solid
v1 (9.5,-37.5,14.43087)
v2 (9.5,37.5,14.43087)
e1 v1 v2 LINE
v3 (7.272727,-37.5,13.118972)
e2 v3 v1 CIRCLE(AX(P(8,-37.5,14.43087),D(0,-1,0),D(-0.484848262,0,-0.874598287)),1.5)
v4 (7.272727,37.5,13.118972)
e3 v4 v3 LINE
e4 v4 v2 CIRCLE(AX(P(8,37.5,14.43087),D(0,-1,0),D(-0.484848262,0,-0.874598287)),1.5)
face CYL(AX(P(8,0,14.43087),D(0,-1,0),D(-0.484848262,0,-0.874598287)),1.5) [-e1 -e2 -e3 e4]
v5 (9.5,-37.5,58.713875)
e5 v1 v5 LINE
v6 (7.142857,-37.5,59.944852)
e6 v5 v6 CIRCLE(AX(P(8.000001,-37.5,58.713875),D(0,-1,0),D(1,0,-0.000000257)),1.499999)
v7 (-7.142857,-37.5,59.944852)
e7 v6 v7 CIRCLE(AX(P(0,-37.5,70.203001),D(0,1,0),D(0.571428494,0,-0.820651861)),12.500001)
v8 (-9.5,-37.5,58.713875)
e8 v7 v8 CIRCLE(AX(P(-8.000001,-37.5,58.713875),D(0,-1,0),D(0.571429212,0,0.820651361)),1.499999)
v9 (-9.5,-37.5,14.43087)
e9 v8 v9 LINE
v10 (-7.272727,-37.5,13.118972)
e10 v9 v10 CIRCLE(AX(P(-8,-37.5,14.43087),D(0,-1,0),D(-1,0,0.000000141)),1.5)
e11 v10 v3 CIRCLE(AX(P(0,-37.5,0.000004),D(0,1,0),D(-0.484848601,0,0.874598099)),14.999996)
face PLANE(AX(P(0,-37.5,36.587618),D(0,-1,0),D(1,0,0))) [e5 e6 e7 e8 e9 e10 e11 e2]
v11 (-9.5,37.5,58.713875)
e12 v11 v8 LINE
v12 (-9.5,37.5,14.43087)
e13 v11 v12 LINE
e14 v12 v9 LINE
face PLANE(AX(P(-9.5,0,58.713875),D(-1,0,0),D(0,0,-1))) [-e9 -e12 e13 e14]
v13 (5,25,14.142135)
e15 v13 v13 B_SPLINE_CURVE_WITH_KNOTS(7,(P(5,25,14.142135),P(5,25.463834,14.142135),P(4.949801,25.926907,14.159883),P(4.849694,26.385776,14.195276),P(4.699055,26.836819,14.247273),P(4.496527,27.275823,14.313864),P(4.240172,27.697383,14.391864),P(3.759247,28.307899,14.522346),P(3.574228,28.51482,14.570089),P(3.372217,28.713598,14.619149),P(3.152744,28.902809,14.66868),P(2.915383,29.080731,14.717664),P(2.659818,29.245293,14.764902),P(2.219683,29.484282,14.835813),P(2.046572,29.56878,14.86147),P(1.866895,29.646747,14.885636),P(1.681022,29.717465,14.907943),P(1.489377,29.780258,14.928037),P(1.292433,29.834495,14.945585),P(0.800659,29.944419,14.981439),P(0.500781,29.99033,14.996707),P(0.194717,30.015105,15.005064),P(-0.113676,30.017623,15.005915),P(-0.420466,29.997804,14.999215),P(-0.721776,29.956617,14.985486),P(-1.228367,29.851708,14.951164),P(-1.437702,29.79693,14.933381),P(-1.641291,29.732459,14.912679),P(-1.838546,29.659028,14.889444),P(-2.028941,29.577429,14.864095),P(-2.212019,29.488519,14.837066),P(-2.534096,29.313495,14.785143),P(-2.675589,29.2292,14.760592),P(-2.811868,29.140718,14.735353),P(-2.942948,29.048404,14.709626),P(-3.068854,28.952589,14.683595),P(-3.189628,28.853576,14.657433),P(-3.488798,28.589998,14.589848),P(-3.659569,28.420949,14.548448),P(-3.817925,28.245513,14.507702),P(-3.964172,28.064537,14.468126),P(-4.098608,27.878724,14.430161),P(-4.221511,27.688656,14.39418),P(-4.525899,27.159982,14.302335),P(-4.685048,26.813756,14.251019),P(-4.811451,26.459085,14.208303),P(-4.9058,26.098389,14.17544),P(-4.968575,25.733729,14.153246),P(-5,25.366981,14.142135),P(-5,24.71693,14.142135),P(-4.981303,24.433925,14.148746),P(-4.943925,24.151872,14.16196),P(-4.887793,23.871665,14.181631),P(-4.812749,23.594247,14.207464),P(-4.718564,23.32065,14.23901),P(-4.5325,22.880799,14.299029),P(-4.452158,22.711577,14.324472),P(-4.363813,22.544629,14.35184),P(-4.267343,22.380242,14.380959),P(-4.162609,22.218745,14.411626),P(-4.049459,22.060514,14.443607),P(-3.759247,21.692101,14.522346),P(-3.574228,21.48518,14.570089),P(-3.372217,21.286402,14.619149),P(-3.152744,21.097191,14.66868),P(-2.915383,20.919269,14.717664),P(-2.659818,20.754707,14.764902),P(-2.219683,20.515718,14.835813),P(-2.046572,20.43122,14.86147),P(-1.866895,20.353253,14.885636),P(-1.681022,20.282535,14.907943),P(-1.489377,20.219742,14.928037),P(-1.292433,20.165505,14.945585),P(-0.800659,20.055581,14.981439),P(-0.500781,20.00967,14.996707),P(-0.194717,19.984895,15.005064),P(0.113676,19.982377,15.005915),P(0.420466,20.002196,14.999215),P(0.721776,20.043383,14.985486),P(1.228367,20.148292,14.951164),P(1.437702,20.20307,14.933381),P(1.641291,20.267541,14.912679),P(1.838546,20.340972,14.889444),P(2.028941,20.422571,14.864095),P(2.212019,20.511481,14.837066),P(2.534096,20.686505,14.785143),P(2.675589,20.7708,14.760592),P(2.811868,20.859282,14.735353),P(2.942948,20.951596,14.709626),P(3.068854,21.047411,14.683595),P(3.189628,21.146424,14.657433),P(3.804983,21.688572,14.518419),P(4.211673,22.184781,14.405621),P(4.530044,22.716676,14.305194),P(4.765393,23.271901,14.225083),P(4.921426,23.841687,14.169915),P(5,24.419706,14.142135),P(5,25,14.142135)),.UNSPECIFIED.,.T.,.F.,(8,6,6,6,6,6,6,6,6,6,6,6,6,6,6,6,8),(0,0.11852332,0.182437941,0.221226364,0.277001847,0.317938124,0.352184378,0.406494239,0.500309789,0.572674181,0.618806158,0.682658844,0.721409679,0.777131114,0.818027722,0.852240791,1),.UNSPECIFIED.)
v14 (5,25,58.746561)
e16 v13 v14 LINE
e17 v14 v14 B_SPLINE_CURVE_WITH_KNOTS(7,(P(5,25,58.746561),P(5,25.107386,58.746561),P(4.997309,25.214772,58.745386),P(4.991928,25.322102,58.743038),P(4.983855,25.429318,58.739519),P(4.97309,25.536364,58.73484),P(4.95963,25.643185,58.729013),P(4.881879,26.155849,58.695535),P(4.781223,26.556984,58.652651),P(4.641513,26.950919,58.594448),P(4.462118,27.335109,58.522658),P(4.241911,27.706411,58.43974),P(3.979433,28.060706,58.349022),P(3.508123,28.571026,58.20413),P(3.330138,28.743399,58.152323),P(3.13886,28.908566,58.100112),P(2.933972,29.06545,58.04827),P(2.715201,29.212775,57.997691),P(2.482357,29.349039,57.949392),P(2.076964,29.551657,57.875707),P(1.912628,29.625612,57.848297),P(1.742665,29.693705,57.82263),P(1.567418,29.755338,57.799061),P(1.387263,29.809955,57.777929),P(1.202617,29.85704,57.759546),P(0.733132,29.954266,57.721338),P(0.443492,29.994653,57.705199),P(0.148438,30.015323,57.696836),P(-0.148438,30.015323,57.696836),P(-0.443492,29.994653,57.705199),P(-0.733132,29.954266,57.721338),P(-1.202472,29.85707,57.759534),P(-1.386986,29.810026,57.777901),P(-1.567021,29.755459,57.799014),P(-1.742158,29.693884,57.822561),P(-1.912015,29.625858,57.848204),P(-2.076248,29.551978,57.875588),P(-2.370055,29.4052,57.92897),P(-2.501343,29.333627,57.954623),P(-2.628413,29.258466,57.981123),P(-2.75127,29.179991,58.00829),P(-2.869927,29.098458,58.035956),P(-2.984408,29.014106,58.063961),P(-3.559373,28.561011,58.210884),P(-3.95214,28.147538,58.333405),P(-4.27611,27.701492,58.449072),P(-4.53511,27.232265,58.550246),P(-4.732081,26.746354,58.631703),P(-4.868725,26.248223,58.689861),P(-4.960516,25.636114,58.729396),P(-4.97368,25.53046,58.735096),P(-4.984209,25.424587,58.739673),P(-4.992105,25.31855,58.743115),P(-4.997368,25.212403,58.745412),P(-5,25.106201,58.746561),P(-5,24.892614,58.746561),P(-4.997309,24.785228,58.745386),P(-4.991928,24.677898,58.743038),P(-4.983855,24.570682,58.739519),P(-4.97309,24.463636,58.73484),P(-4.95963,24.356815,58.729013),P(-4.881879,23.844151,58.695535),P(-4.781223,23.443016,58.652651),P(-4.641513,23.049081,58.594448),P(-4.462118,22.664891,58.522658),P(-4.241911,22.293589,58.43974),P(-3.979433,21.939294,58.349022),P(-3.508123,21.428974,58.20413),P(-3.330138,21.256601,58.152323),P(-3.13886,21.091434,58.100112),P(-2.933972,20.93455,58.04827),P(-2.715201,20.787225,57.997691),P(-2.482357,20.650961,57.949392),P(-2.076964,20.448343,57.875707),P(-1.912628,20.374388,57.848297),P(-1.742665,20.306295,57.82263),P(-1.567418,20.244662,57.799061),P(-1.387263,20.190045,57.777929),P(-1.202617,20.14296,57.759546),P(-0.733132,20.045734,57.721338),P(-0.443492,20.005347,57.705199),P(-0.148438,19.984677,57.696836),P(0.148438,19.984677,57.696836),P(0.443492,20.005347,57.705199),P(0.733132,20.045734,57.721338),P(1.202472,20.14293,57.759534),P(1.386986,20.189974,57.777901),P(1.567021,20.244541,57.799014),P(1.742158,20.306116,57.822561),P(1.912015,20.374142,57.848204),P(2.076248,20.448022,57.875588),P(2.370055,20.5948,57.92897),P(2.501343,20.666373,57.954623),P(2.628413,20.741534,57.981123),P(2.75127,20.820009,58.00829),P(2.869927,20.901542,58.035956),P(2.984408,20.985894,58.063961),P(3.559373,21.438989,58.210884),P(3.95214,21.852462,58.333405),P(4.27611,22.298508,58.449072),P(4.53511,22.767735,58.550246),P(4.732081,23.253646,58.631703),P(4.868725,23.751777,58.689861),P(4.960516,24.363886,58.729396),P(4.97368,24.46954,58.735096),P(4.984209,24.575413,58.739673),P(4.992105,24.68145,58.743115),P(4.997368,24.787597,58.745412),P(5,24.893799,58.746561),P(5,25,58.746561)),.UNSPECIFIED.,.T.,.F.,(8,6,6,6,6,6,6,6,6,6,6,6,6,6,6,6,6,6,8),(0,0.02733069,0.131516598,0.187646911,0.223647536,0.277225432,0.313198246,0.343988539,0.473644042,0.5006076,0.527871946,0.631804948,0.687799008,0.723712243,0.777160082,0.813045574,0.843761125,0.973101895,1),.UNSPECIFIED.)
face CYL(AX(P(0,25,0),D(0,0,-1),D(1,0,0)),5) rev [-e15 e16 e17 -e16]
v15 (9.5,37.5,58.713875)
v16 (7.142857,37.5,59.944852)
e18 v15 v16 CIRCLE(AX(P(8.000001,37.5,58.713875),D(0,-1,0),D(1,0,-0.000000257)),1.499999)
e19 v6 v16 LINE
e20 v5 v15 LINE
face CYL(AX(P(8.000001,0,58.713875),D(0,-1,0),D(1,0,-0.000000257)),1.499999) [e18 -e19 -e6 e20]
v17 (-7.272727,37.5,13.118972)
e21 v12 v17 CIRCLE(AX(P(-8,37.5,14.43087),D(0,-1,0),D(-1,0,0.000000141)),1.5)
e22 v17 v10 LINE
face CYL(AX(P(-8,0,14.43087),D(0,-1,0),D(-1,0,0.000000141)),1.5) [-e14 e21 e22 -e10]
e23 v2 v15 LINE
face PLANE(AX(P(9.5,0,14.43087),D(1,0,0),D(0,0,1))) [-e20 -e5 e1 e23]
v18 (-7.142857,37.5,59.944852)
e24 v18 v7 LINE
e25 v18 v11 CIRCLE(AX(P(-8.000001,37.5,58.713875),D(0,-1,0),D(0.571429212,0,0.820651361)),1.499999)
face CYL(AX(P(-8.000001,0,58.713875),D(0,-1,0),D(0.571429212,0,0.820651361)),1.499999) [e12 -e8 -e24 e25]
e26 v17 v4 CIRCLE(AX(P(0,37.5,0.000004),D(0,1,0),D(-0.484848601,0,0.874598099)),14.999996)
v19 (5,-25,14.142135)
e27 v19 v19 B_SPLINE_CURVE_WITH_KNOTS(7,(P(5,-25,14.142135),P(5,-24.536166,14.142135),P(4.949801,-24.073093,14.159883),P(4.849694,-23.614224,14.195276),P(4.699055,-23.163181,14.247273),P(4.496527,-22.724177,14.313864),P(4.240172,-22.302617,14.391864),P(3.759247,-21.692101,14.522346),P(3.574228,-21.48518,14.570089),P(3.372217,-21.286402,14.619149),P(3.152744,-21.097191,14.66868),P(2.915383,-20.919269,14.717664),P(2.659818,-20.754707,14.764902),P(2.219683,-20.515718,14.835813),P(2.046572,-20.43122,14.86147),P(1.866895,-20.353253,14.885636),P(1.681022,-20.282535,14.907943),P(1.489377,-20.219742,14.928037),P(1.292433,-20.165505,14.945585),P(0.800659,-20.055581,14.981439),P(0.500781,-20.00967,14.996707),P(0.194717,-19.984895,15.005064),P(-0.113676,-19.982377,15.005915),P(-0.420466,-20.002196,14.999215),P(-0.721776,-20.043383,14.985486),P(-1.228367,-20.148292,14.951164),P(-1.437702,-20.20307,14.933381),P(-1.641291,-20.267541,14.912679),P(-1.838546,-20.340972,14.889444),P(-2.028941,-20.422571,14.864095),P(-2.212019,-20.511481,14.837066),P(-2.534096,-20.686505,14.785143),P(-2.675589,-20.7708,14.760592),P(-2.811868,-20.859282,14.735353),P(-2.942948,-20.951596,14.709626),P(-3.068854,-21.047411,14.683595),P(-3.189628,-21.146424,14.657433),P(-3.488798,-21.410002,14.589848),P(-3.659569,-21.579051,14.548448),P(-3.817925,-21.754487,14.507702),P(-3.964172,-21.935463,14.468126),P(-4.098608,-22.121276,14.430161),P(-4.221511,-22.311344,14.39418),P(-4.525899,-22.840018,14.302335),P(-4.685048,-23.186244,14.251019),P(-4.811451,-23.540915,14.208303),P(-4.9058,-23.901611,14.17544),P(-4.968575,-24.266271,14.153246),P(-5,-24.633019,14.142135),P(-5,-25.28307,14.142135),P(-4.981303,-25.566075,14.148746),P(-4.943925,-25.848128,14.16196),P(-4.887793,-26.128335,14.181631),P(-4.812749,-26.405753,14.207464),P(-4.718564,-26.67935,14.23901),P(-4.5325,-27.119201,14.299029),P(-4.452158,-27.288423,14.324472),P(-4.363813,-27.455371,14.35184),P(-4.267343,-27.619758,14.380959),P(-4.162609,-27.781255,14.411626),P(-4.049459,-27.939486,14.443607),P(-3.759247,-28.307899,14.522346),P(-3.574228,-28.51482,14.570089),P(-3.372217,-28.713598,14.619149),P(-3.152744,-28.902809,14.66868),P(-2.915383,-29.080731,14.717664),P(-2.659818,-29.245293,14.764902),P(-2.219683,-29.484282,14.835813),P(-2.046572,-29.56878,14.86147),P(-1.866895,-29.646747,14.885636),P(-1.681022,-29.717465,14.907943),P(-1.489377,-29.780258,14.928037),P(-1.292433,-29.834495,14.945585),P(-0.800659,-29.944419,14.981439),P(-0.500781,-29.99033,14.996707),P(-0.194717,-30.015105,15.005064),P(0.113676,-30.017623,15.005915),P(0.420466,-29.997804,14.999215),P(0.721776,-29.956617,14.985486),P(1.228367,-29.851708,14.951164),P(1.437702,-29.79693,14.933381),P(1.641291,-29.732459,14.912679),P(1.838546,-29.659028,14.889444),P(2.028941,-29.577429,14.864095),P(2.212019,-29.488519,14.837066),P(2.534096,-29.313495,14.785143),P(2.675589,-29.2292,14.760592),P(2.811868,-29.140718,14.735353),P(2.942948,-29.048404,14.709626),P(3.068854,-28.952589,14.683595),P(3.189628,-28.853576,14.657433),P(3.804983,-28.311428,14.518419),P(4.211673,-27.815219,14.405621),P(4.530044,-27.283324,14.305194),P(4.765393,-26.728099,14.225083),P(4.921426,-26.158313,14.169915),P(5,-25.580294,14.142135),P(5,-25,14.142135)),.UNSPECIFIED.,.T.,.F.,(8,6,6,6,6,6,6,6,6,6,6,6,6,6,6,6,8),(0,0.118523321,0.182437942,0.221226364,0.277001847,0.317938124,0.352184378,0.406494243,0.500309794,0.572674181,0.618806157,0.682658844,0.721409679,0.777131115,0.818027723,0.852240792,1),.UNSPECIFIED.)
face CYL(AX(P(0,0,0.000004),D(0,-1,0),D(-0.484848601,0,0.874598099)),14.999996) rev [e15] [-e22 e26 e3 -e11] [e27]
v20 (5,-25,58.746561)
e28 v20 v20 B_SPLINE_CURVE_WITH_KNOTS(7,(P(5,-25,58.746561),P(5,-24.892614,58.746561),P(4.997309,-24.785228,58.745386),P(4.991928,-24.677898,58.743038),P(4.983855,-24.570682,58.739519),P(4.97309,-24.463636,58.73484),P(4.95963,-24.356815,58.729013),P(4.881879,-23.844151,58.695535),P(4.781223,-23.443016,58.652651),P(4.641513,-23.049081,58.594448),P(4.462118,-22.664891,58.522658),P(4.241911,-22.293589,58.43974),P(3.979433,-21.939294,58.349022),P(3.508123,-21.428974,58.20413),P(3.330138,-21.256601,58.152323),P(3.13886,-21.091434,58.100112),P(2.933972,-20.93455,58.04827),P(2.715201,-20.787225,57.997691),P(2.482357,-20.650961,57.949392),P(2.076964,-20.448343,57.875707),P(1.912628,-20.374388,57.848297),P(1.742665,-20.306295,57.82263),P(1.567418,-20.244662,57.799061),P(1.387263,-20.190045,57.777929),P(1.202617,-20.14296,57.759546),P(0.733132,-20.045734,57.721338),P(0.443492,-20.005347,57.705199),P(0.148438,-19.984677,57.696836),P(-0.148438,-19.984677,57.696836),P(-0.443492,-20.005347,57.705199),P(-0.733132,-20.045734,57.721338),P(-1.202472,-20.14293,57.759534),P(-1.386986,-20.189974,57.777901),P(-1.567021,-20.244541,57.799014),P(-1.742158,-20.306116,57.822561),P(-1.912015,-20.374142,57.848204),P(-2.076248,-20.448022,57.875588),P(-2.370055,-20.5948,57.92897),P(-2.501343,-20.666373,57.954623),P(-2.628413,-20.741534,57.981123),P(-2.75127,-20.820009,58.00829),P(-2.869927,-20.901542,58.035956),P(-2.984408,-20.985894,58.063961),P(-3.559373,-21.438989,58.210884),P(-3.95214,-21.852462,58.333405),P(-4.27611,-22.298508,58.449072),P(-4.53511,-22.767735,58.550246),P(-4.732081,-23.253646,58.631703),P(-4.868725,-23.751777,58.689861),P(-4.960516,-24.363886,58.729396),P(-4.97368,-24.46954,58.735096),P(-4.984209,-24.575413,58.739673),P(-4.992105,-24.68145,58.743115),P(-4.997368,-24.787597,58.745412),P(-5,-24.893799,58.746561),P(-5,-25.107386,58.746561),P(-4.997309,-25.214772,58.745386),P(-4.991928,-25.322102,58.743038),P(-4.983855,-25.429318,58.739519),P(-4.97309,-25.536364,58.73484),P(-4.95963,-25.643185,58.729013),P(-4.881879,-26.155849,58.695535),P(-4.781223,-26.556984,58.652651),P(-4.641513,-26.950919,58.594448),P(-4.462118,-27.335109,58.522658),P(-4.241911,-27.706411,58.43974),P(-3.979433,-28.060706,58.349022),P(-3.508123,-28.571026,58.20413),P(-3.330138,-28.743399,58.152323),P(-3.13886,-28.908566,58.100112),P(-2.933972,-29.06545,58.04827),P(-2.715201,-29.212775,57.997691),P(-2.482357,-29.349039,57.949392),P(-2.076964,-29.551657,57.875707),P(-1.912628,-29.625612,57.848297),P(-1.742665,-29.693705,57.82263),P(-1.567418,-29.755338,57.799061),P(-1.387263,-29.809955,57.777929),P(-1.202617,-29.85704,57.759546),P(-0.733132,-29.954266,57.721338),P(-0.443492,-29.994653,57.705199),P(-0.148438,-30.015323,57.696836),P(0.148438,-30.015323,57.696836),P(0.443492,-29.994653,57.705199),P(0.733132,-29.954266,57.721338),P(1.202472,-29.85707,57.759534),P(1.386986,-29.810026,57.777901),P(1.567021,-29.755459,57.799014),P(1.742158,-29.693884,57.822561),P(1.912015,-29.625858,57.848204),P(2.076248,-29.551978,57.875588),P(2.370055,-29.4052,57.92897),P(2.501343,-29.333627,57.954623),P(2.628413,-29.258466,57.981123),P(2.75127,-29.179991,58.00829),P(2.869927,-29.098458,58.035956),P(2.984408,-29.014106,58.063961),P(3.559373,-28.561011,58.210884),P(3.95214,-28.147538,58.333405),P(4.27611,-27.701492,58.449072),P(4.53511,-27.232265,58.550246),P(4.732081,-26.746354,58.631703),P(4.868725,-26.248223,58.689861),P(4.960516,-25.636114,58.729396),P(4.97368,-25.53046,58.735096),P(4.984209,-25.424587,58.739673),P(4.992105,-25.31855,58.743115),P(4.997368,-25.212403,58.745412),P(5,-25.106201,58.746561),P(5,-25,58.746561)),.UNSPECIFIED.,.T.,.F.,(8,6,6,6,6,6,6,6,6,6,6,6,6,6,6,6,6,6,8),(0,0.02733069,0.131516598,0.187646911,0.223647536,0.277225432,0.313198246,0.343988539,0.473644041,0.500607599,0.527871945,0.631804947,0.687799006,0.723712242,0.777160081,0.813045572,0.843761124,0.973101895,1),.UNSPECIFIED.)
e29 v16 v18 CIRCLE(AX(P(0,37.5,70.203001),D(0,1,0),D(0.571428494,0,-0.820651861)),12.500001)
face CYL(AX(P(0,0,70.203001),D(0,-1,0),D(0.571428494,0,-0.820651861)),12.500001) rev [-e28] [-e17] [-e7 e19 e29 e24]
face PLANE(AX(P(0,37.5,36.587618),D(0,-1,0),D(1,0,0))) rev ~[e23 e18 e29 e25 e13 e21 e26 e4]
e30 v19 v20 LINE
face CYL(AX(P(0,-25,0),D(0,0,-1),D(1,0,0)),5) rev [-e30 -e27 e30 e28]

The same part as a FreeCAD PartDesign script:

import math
import FreeCAD as App
import Part
import Sketcher

V = App.Vector
Q = App.Units.Quantity

doc = App.newDocument("Part")
body = doc.addObject("PartDesign::Body", "Body")

sketch1 = body.newObject("Sketcher::SketchObject", "Sketch")
sketch1.AttachmentSupport = (doc.getObject("XZ_Plane"), [""])
sketch1.MapMode = "FlatFace"
sketch1.addGeometry([
    Part.ArcOfCircle(Part.Circle(V(0, 70.2, 0), V(0, 0, 1), 12.5), math.radians(-125), math.radians(-55)),
    Part.ArcOfCircle(Part.Circle(V(-8, 58.7, 0), V(0, 0, 1), 1.5), math.radians(55), math.radians(180)),
    Part.LineSegment(V(-9.5, 58.7, 0), V(-9.5, 14.4, 0)),
    Part.ArcOfCircle(Part.Circle(V(-8, 14.4, 0), V(0, 0, 1), 1.5), math.radians(180), math.radians(299)),
    Part.ArcOfCircle(Part.Circle(V(0, 0, 0), V(0, 0, 1), 15), math.radians(61), math.radians(119)),
    Part.ArcOfCircle(Part.Circle(V(8, 14.4, 0), V(0, 0, 1), 1.5), math.radians(-119), math.radians(0)),
    Part.LineSegment(V(9.5, 14.4, 0), V(9.5, 58.7, 0)),
    Part.ArcOfCircle(Part.Circle(V(8, 58.7, 0), V(0, 0, 1), 1.5), math.radians(0), math.radians(125)),
], False)
sketch1.addConstraint([
    Sketcher.Constraint("Tangent", 0, 1, 1, 1),
    Sketcher.Constraint("Tangent", 1, 2, 2, 1),
    Sketcher.Constraint("Tangent", 2, 2, 3, 1),
    Sketcher.Constraint("Tangent", 3, 2, 4, 2),
    Sketcher.Constraint("Tangent", 4, 1, 5, 1),
    Sketcher.Constraint("Tangent", 5, 2, 6, 1),
    Sketcher.Constraint("Tangent", 6, 2, 7, 1),
    Sketcher.Constraint("Tangent", 7, 2, 0, 2),
    Sketcher.Constraint("Vertical", 2),
    Sketcher.Constraint("Vertical", 6),
    Sketcher.Constraint("Coincident", 4, 3, -1, 1),
    Sketcher.Constraint("Equal", 1, 3),
    Sketcher.Constraint("Equal", 3, 5),
    Sketcher.Constraint("Equal", 5, 7),
    Sketcher.Constraint("Symmetric", 1, 3, 7, 3, -2),
    Sketcher.Constraint("Radius", 0, Q("12.500001 mm")),
    Sketcher.Constraint("Radius", 1, Q("1.499999 mm")),
    Sketcher.Constraint("DistanceX", 1, 3, -1, 1, Q("8.000001 mm")),
    Sketcher.Constraint("DistanceY", -1, 1, 0, 3, Q("70.203001 mm")),
    Sketcher.Constraint("Radius", 4, Q("14.999996 mm")),
])
pad1 = body.newObject("PartDesign::Pad", "Pad")
pad1.Profile = sketch1
pad1.Length = 75
pad1.Midplane = True

sketch2 = body.newObject("Sketcher::SketchObject", "Sketch001")
sketch2.AttachmentSupport = (doc.getObject("XY_Plane"), [""])
sketch2.MapMode = "FlatFace"
sketch2.addGeometry([
    Part.Circle(V(0, 25, 0), V(0, 0, 1), 5),
    Part.Circle(V(0, -25, 0), V(0, 0, 1), 5),
], False)
sketch2.addConstraint([
    Sketcher.Constraint("Equal", 0, 1),
    Sketcher.Constraint("Symmetric", 0, 3, 1, 3, -1, 1),
    Sketcher.Constraint("PointOnObject", 0, 3, -2),
    Sketcher.Constraint("Diameter", 0, Q("10 mm")),
    Sketcher.Constraint("DistanceY", -1, 1, 0, 3, Q("25 mm")),
])
pocket1 = body.newObject("PartDesign::Pocket", "Pocket")
pocket1.Profile = sketch2
pocket1.Length = 103.7
pocket1.Reversed = True

doc.recompute()
